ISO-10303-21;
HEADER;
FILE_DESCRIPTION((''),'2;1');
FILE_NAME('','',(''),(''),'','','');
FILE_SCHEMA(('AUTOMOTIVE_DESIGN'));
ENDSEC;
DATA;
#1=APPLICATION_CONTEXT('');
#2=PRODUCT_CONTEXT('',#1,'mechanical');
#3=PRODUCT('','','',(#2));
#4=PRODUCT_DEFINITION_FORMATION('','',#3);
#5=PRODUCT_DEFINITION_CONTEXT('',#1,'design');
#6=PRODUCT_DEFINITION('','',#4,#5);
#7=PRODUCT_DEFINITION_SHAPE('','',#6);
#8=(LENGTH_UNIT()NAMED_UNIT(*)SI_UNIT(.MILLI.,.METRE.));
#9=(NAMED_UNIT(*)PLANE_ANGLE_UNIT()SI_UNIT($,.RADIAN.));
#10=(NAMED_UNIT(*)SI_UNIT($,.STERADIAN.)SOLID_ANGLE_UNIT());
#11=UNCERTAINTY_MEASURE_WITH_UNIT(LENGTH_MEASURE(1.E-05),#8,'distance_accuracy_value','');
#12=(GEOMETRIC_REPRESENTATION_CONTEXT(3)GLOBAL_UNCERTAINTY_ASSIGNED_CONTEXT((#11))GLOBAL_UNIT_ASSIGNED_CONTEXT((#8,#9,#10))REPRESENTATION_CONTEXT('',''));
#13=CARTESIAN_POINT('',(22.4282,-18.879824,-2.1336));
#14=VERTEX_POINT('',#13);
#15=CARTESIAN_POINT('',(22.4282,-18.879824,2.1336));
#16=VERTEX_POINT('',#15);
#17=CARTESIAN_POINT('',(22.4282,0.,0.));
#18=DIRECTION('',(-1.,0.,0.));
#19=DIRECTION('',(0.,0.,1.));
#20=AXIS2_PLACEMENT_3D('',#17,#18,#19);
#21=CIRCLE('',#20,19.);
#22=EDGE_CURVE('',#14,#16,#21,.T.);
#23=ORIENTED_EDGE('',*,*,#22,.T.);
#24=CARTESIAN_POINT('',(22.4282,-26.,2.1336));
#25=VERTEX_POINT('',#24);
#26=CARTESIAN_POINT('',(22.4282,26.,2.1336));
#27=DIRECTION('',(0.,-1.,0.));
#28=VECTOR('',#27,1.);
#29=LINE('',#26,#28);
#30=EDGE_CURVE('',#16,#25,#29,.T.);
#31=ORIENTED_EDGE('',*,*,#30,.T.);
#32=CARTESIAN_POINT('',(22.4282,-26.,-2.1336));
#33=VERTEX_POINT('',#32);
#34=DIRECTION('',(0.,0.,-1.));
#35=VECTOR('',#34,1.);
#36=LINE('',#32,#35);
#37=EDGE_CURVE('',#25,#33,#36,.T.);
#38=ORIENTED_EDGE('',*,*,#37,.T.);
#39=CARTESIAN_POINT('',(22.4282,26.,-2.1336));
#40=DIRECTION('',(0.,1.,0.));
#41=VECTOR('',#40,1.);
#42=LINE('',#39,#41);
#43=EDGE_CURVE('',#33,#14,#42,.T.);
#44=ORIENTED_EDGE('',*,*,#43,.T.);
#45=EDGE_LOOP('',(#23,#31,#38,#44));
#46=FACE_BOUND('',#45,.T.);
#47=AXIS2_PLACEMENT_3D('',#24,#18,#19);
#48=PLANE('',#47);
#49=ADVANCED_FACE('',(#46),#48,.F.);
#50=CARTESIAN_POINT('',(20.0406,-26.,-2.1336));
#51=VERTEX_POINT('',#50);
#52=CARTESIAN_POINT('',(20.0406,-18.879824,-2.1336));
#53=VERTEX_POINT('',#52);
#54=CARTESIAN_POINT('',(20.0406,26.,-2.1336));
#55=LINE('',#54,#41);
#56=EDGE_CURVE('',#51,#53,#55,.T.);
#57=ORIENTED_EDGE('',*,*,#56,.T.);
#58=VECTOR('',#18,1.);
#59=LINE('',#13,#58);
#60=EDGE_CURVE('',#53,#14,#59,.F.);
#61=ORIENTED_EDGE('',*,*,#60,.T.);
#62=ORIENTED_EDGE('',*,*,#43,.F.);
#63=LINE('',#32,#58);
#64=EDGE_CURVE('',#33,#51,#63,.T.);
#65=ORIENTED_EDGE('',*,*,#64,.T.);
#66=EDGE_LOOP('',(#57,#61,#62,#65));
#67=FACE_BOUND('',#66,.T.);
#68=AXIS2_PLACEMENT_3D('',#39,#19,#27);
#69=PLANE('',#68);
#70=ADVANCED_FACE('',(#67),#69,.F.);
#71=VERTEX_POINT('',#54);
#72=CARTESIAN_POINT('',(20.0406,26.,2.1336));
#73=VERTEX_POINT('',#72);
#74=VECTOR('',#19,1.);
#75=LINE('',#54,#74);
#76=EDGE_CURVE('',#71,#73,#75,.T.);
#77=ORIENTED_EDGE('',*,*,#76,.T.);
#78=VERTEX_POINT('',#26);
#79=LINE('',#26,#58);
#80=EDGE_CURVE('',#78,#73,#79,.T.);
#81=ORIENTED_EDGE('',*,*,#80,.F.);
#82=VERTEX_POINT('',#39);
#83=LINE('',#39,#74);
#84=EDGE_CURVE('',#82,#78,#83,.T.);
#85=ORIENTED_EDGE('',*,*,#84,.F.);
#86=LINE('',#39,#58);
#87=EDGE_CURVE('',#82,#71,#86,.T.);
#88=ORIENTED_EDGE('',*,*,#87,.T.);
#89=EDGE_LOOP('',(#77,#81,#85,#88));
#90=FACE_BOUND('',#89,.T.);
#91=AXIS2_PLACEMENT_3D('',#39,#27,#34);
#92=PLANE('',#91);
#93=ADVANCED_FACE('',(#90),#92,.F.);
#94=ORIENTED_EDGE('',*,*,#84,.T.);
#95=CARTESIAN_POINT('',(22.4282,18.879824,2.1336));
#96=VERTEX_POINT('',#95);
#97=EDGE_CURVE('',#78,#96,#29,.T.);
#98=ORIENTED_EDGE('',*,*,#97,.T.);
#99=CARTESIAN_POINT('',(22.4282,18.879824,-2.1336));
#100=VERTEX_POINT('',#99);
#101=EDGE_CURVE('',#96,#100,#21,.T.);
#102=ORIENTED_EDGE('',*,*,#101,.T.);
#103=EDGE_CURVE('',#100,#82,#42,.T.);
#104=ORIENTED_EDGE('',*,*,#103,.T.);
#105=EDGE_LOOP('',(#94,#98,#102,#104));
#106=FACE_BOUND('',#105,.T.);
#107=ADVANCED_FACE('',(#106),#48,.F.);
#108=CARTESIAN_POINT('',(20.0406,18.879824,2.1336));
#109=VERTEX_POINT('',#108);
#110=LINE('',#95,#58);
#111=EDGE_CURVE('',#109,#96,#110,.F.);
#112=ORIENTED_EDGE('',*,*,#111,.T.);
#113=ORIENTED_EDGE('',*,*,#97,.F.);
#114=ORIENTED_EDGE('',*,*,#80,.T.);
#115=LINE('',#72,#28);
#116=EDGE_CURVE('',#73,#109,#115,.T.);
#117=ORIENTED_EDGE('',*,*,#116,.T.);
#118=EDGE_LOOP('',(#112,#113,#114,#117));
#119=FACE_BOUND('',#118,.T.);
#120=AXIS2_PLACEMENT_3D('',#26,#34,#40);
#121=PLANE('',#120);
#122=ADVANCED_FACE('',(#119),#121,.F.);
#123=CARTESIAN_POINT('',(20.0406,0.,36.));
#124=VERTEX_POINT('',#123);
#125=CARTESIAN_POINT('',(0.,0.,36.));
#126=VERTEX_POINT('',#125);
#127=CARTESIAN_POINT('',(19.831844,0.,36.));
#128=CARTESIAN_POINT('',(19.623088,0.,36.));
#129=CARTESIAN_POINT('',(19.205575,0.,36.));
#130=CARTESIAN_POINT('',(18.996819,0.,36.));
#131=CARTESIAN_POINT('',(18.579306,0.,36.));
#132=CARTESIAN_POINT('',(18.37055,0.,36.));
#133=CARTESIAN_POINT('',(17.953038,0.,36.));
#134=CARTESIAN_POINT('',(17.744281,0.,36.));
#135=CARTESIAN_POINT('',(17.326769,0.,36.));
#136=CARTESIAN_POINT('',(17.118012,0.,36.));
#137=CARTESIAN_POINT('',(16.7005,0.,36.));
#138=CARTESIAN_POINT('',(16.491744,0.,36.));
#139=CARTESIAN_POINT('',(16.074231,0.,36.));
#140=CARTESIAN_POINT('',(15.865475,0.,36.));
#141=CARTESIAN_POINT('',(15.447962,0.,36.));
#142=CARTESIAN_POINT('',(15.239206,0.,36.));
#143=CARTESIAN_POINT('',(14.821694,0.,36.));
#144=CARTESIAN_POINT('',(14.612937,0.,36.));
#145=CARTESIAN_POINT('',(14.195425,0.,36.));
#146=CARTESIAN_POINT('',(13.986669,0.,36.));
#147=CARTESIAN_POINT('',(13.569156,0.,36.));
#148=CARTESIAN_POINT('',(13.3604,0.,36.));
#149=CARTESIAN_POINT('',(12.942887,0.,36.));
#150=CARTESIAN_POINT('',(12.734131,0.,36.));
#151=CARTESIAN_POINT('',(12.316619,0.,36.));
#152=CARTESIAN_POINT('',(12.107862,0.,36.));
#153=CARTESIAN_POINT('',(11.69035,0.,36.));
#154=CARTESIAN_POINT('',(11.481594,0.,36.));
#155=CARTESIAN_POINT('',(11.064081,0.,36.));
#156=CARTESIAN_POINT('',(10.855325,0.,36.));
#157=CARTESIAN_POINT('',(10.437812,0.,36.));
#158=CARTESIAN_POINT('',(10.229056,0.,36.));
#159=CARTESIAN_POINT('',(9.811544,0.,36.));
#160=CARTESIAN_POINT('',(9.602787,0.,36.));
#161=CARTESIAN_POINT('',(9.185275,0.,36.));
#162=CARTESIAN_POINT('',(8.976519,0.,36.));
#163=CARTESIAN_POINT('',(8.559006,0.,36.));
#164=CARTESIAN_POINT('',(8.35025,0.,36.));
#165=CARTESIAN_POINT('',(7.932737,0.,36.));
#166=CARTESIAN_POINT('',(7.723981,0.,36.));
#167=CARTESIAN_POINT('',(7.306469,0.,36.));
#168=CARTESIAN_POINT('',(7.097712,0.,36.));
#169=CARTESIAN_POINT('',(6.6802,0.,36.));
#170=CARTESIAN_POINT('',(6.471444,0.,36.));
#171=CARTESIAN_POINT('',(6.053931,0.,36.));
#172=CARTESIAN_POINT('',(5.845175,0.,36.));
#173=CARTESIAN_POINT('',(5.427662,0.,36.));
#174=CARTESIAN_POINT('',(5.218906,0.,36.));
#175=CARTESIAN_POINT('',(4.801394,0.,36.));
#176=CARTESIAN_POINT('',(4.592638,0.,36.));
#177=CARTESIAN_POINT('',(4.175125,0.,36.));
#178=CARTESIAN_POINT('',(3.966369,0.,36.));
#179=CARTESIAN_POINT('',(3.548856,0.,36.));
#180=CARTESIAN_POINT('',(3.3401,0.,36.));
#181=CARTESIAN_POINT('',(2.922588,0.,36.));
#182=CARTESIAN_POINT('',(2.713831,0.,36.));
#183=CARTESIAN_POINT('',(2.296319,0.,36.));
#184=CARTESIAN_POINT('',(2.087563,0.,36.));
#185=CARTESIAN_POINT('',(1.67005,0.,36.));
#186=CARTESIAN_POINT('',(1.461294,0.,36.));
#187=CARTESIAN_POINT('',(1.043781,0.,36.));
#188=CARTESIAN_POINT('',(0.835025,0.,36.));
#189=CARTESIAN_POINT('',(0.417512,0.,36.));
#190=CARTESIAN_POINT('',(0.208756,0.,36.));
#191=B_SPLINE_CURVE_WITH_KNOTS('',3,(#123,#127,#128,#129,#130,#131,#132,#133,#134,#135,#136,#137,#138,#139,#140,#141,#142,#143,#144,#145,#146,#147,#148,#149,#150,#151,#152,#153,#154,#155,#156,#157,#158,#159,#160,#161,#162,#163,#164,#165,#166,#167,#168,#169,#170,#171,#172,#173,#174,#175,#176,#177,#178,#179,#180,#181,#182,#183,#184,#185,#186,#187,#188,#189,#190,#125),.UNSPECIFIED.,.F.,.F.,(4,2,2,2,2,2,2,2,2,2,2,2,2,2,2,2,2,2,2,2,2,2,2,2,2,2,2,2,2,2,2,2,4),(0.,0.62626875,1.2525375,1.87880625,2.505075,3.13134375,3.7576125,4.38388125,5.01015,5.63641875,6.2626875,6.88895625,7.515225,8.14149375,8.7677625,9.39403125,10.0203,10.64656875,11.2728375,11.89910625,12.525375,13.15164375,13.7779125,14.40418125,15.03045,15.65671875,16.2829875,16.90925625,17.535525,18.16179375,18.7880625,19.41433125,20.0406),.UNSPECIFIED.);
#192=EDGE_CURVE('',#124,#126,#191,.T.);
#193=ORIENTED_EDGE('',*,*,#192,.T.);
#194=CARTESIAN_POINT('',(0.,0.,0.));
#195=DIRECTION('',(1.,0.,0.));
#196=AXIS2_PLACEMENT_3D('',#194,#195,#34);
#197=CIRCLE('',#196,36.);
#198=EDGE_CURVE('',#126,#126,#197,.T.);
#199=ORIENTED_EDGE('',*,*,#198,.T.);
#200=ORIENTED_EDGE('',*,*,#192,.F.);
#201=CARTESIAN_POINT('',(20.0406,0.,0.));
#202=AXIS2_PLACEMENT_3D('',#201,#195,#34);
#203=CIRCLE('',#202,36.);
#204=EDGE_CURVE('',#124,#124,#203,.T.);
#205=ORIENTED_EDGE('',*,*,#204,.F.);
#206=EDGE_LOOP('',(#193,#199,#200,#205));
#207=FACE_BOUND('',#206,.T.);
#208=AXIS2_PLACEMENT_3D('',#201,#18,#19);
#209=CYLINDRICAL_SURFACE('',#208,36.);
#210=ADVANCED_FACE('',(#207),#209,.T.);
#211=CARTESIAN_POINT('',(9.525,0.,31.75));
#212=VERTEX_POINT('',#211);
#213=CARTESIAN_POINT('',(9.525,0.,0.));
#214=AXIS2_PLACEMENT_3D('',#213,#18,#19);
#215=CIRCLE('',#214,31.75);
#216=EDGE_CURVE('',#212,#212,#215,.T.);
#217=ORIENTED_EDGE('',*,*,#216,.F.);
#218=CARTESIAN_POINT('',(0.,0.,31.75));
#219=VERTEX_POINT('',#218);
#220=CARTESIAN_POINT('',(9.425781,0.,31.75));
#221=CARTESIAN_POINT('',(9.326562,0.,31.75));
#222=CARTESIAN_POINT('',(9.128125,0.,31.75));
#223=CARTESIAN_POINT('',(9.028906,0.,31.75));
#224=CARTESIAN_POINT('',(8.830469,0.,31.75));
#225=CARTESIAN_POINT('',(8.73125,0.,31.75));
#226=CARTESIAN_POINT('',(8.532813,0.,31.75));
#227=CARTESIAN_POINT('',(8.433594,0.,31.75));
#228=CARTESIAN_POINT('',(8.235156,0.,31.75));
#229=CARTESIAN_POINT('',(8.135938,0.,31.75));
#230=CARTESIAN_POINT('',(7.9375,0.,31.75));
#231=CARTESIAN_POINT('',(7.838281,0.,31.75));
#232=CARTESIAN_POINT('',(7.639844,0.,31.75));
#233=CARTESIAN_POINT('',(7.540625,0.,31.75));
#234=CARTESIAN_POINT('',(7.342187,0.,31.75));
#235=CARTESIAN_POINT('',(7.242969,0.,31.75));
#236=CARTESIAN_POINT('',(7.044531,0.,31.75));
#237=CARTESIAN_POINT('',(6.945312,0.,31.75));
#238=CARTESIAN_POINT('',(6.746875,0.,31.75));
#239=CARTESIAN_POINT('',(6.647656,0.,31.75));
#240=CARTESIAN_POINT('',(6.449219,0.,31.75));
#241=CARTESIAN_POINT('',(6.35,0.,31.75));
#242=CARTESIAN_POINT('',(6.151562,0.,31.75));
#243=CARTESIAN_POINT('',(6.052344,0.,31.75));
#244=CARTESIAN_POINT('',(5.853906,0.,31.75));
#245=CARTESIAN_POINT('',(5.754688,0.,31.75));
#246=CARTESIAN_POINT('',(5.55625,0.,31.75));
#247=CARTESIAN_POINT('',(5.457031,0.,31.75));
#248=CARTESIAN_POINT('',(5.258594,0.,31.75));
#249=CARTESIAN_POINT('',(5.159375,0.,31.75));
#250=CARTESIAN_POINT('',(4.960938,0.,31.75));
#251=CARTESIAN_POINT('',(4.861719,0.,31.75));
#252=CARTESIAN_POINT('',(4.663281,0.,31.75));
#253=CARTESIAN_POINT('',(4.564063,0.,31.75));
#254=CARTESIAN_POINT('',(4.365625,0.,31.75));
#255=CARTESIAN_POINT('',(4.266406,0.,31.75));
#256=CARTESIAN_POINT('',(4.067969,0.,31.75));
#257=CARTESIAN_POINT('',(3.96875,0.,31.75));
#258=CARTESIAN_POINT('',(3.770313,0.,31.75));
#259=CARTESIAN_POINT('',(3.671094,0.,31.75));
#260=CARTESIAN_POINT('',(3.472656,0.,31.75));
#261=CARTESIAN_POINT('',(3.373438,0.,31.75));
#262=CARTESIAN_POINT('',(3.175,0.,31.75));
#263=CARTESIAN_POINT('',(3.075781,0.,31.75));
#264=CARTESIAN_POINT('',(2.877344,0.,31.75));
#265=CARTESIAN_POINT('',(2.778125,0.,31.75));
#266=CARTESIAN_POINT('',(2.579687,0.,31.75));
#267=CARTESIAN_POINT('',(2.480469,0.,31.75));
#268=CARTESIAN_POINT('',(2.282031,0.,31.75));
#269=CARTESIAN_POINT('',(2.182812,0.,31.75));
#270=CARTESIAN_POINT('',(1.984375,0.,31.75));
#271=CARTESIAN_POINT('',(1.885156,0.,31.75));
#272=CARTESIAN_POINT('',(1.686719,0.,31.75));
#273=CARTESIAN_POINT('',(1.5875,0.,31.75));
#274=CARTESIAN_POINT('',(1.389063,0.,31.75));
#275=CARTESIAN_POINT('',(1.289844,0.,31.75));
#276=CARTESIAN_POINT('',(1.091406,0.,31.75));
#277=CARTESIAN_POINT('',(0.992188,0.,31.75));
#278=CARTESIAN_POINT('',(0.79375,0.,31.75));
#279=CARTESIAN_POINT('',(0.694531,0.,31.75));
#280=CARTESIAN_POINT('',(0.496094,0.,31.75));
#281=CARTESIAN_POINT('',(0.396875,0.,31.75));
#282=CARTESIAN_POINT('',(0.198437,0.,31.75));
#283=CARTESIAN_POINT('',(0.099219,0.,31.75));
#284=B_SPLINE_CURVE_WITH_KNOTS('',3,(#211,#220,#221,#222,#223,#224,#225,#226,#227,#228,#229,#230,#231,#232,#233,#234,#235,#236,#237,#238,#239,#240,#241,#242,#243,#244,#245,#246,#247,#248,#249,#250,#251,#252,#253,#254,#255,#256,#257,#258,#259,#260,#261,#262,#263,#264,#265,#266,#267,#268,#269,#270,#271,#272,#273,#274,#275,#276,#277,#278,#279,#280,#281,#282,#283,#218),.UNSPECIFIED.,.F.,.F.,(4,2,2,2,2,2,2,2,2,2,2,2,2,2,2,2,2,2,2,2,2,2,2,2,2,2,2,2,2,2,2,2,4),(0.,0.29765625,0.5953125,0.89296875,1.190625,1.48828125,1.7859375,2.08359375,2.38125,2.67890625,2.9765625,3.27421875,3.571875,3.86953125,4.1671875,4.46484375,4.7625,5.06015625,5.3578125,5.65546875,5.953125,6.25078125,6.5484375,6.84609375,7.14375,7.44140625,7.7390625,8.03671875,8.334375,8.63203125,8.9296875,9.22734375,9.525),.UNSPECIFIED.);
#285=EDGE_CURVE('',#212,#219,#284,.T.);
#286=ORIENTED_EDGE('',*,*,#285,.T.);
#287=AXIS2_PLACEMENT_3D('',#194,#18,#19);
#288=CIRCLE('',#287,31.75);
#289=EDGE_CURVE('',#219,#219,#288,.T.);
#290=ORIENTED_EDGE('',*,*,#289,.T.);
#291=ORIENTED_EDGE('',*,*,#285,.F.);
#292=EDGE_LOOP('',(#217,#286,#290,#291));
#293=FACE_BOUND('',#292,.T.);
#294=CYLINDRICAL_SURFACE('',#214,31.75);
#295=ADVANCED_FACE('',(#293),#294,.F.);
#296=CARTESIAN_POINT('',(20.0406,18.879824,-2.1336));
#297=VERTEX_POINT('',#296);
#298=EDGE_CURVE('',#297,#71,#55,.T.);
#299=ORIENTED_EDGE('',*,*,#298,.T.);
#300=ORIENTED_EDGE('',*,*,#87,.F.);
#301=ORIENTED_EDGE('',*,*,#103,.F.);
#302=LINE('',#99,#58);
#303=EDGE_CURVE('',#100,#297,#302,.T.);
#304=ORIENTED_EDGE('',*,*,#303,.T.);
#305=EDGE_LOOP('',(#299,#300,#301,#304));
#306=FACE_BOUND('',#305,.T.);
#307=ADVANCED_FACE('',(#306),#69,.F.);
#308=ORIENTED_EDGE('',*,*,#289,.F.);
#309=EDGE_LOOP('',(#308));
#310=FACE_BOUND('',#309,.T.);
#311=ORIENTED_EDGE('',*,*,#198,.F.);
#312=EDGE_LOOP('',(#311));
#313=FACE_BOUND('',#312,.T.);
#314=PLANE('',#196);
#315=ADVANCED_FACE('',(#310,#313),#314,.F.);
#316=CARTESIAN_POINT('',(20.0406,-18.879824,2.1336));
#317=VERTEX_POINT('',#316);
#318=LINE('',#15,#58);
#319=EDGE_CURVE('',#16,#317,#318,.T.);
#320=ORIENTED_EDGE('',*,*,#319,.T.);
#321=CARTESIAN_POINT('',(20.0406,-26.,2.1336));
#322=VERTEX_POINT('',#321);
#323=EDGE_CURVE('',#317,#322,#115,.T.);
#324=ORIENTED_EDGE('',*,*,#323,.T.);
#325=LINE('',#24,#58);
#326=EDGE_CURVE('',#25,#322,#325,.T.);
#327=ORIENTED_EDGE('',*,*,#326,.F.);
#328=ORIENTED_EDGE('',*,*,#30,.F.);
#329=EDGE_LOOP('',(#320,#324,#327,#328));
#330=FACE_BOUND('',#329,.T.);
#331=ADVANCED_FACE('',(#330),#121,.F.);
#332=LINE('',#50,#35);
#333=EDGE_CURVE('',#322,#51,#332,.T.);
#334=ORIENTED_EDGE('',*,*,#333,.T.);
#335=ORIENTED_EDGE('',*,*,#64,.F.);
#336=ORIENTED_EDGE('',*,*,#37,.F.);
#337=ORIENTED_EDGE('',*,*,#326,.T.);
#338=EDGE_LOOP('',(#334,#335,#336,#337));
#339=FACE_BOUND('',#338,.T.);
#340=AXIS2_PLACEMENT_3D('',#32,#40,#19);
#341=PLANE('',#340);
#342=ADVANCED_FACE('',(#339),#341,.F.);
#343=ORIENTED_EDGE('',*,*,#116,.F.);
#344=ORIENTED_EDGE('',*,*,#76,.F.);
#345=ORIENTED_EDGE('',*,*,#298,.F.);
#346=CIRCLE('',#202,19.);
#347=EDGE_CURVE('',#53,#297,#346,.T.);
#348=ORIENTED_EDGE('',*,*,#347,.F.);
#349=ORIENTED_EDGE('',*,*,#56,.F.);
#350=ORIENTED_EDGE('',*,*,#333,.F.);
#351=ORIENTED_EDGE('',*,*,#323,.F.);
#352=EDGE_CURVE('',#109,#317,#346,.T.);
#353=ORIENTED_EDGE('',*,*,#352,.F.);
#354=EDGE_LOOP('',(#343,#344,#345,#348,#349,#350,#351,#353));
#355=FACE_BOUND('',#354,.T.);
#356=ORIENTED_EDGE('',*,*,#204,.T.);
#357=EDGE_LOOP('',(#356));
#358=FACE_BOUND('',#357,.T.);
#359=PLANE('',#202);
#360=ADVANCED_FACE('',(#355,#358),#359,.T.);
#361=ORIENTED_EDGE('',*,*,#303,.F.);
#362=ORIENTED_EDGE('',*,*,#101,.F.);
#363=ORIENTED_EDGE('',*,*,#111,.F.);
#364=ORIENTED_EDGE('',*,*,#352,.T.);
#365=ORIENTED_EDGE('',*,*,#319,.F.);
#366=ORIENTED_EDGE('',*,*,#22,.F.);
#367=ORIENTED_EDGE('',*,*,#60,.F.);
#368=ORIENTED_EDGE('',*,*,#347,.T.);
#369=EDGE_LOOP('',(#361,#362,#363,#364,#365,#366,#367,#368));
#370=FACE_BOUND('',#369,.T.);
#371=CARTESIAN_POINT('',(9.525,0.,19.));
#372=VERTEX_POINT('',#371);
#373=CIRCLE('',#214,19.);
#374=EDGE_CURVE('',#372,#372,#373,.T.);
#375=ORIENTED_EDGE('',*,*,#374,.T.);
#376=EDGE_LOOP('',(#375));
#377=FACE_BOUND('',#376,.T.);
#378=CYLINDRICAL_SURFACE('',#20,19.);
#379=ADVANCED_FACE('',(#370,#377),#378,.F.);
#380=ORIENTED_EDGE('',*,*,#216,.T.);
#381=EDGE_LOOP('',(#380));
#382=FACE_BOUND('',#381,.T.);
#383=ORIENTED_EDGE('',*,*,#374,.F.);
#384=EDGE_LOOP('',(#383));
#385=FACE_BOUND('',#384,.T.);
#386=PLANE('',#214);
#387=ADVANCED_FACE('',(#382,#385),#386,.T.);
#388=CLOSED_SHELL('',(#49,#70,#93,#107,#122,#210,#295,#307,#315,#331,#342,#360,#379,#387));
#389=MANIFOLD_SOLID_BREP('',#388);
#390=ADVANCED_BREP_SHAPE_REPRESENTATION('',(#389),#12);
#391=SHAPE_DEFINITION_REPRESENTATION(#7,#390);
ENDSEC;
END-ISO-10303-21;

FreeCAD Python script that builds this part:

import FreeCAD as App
import Part
import Sketcher
Q = App.Units.Quantity

doc = App.newDocument("Part")
params = doc.addObject("Spreadsheet::Sheet", "Params")
for row, (alias, value) in enumerate([
    ("pad1_length", "0.789 in"),
    ("sketch2_diameter", "2.5 in"),
    ("pocket1_length", "0.375 in"),
    ("sketch3_height", "0.168 in"),
    ("pad2_length", "0.094 in"),
], start=1):
    params.set(f"A{row}", alias)
    params.set(f"B{row}", "=" + value)
    params.setAlias(f"B{row}", alias)

body = doc.addObject("PartDesign::Body", "Body")

# Sketch on YZ plane
sketch1 = body.newObject("Sketcher::SketchObject", "Sketch")
sketch1.AttachmentSupport = (doc.getObject("YZ_Plane"), [""])
sketch1.MapMode = "FlatFace"
sketch1.addGeometry(Part.Circle(App.Vector(0, 0, 0), App.Vector(0, 0, 1), 36), False)
sketch1.addConstraint([
    Sketcher.Constraint("Coincident", 0, 3, -1, 1),
    Sketcher.Constraint("Diameter", 0, 72.0),
])
pad1 = body.newObject("PartDesign::Pad", "Pad")
pad1.Profile = sketch1
pad1.setExpression("Length", "Params.pad1_length")

# Sketch on YZ plane
sketch2 = body.newObject("Sketcher::SketchObject", "Sketch001")
sketch2.AttachmentSupport = (doc.getObject("YZ_Plane"), [""])
sketch2.MapMode = "FlatFace"
sketch2.addGeometry(Part.Circle(App.Vector(0, 0, 0), App.Vector(0, 0, 1), 32), False)
sketch2.addConstraint([
    Sketcher.Constraint("Coincident", 0, 3, -1, 1),
    Sketcher.Constraint("Diameter", 0, Q("2.5 in")),
])
sketch2.setExpression("Constraints[1]", "Params.sketch2_diameter")
pocket1 = body.newObject("PartDesign::Pocket", "Pocket")
pocket1.Profile = sketch2
pocket1.setExpression("Length", "Params.pocket1_length")
pocket1.Reversed = True

# Sketch on YZ plane
sketch3 = body.newObject("Sketcher::SketchObject", "Sketch002")
sketch3.AttachmentSupport = (doc.getObject("YZ_Plane"), [""])
sketch3.MapMode = "FlatFace"
sketch3.AttachmentOffset = App.Placement(App.Vector(0, 0, 0.789 * 25.4), App.Rotation())
sketch3.addGeometry([
    Part.LineSegment(App.Vector(26, 2.1, 0), App.Vector(-26, 2.1, 0)),
    Part.LineSegment(App.Vector(-26, 2.1, 0), App.Vector(-26, -2.1, 0)),
    Part.LineSegment(App.Vector(-26, -2.1, 0), App.Vector(26, -2.1, 0)),
    Part.LineSegment(App.Vector(26, -2.1, 0), App.Vector(26, 2.1, 0)),
], False)
sketch3.addConstraint([
    Sketcher.Constraint("Coincident", 0, 2, 1, 1),
    Sketcher.Constraint("Coincident", 1, 2, 2, 1),
    Sketcher.Constraint("Coincident", 2, 2, 3, 1),
    Sketcher.Constraint("Coincident", 3, 2, 0, 1),
    Sketcher.Constraint("Horizontal", 0),
    Sketcher.Constraint("Vertical", 1),
    Sketcher.Constraint("Horizontal", 2),
    Sketcher.Constraint("Vertical", 3),
    Sketcher.Constraint("Symmetric", 0, 2, 2, 2, -1, 1),
    Sketcher.Constraint("DistanceY", 1, 2, 1, 1, Q("0.168 in")),
    Sketcher.Constraint("DistanceX", 0, 2, 0, 1, 52.0),
])
sketch3.setExpression("Constraints[9]", "Params.sketch3_height")
pad2 = body.newObject("PartDesign::Pad", "Pad001")
pad2.Profile = sketch3
pad2.setExpression("Length", "Params.pad2_length")

# Sketch on YZ plane
sketch4 = body.newObject("Sketcher::SketchObject", "Sketch003")
sketch4.AttachmentSupport = (doc.getObject("YZ_Plane"), [""])
sketch4.MapMode = "FlatFace"
sketch4.addGeometry(Part.Circle(App.Vector(0, 0, 0), App.Vector(0, 0, 1), 19), False)
sketch4.addConstraint([
    Sketcher.Constraint("Coincident", 0, 3, -1, 1),
    Sketcher.Constraint("Diameter", 0, 38.0),
])
pocket2 = body.newObject("PartDesign::Pocket", "Pocket001")
pocket2.Profile = sketch4
pocket2.Type = "ThroughAll"
pocket2.Reversed = True

doc.recompute()
